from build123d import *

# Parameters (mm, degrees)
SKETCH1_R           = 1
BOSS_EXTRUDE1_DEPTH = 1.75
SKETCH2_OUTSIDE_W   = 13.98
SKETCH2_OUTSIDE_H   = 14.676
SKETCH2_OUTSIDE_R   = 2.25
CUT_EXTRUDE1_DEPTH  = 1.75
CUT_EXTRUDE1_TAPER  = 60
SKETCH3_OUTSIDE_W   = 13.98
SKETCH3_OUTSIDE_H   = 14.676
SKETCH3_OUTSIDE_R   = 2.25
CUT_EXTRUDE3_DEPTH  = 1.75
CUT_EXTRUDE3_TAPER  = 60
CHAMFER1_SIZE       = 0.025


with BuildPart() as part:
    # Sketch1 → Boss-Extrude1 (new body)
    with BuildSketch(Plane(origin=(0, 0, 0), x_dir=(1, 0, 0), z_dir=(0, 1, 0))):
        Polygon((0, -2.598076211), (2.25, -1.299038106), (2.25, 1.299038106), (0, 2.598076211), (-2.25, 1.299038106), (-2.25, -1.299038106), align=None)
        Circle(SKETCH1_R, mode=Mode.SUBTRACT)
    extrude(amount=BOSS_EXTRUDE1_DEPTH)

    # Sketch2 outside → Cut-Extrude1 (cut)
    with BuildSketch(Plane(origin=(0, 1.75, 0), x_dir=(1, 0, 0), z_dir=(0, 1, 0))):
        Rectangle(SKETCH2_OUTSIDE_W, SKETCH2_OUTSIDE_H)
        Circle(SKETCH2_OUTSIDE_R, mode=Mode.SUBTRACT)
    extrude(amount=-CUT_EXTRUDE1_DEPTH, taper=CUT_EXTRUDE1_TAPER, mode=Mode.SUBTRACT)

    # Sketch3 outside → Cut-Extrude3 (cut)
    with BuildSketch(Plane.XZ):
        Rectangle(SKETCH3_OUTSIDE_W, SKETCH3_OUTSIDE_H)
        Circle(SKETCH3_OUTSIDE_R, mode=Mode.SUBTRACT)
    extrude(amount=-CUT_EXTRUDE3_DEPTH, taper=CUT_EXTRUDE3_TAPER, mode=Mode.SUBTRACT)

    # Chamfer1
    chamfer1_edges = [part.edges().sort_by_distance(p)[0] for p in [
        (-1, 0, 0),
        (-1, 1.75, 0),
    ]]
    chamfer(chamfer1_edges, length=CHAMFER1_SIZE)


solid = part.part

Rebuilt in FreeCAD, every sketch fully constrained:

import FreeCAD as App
import Part
import Sketcher
Q = App.Units.Quantity


def edges_at(feature, points):
    """Names of the edges that pass closest to the given points."""
    edges = feature.Shape.Edges
    near = lambda p: min(range(len(edges)), key=lambda i: edges[i].distToShape(Part.Vertex(*p))[0])
    return sorted({f"Edge{near(p) + 1}" for p in points})

doc = App.newDocument("Part")
body = doc.addObject("PartDesign::Body", "Body")

# Sketch on XZ plane
sketch1 = body.newObject("Sketcher::SketchObject", "Sketch")
sketch1.AttachmentSupport = (doc.getObject("XZ_Plane"), [""])
sketch1.MapMode = "FlatFace"
sketch1.addGeometry(Part.LineSegment(App.Vector(0, 2.598076, 0), App.Vector(2.25, 1.299038, 0)), False)
sketch1.addGeometry(Part.LineSegment(App.Vector(2.25, 1.299038, 0), App.Vector(2.25, -1.299038, 0)), False)
sketch1.addGeometry(Part.LineSegment(App.Vector(2.25, -1.299038, 0), App.Vector(0, -2.598076, 0)), False)
sketch1.addGeometry(Part.LineSegment(App.Vector(0, -2.598076, 0), App.Vector(-2.25, -1.299038, 0)), False)
sketch1.addGeometry(Part.LineSegment(App.Vector(-2.25, -1.299038, 0), App.Vector(-2.25, 1.299038, 0)), False)
sketch1.addGeometry(Part.LineSegment(App.Vector(-2.25, 1.299038, 0), App.Vector(0, 2.598076, 0)), False)
sketch1.addGeometry(Part.Circle(App.Vector(0, 0, 0), App.Vector(0, 0, 1), 1), False)
sketch1.addConstraint(Sketcher.Constraint("Coincident", 0, 2, 1, 1))
sketch1.addConstraint(Sketcher.Constraint("Coincident", 1, 2, 2, 1))
sketch1.addConstraint(Sketcher.Constraint("Coincident", 2, 2, 3, 1))
sketch1.addConstraint(Sketcher.Constraint("Coincident", 3, 2, 4, 1))
sketch1.addConstraint(Sketcher.Constraint("Coincident", 4, 2, 5, 1))
sketch1.addConstraint(Sketcher.Constraint("Coincident", 5, 2, 0, 1))
sketch1.addConstraint(Sketcher.Constraint("Vertical", 1))
sketch1.addConstraint(Sketcher.Constraint("Vertical", 4))
sketch1.addConstraint(Sketcher.Constraint("Coincident", 6, 3, -1, 1))
sketch1.addConstraint(Sketcher.Constraint("Symmetric", 0, 2, 3, 2, -1, 1))
sketch1.addConstraint(Sketcher.Constraint("Symmetric", 2, 2, 5, 2, -1, 1))
sketch1.addConstraint(Sketcher.Constraint("PointOnObject", 2, 2, -2))
sketch1.addConstraint(Sketcher.Constraint("Parallel", 2, 5))
sketch1.addConstraint(Sketcher.Constraint("Horizontal", 1, 2, 3, 2))
sketch1.addConstraint(Sketcher.Constraint("Diameter", 6, Q("2 mm")))
sketch1.addConstraint(Sketcher.Constraint("Angle", 0, Q("-30 deg")))
sketch1.addConstraint(Sketcher.Constraint("DistanceX", 3, 2, 1, 2, Q("4.5 mm")))
sketch1.addConstraint(Sketcher.Constraint("DistanceY", 1, 2, 1, 1, Q("2.598076 mm")))
pad1 = body.newObject("PartDesign::Pad", "Pad")
pad1.Profile = sketch1
pad1.Length = 1.75
pad1.Reversed = True

# Sketch on XZ plane
sketch2 = body.newObject("Sketcher::SketchObject", "Sketch001")
sketch2.AttachmentSupport = (doc.getObject("XZ_Plane"), [""])
sketch2.MapMode = "FlatFace"
sketch2.AttachmentOffset = App.Placement(App.Vector(0, 0, -1.75), App.Rotation())
sketch2.addGeometry(Part.LineSegment(App.Vector(-6.99, -7.338, 0), App.Vector(-6.99, 7.338, 0)), False)
sketch2.addGeometry(Part.LineSegment(App.Vector(-6.99, 7.338, 0), App.Vector(6.99, 7.338, 0)), False)
sketch2.addGeometry(Part.LineSegment(App.Vector(6.99, 7.338, 0), App.Vector(6.99, -7.338, 0)), False)
sketch2.addGeometry(Part.LineSegment(App.Vector(6.99, -7.338, 0), App.Vector(-6.99, -7.338, 0)), False)
sketch2.addGeometry(Part.Circle(App.Vector(0, 0, 0), App.Vector(0, 0, 1), 2.25), False)
sketch2.addConstraint(Sketcher.Constraint("Coincident", 0, 2, 1, 1))
sketch2.addConstraint(Sketcher.Constraint("Coincident", 1, 2, 2, 1))
sketch2.addConstraint(Sketcher.Constraint("Coincident", 2, 2, 3, 1))
sketch2.addConstraint(Sketcher.Constraint("Coincident", 3, 2, 0, 1))
sketch2.addConstraint(Sketcher.Constraint("Vertical", 0))
sketch2.addConstraint(Sketcher.Constraint("Horizontal", 1))
sketch2.addConstraint(Sketcher.Constraint("Vertical", 2))
sketch2.addConstraint(Sketcher.Constraint("Horizontal", 3))
sketch2.addConstraint(Sketcher.Constraint("Coincident", 4, 3, -1, 1))
sketch2.addConstraint(Sketcher.Constraint("Symmetric", 0, 2, 2, 2, -1, 1))
sketch2.addConstraint(Sketcher.Constraint("Diameter", 4, Q("4.5 mm")))
sketch2.addConstraint(Sketcher.Constraint("DistanceX", 1, 1, 1, 2, Q("13.98 mm")))
sketch2.addConstraint(Sketcher.Constraint("DistanceY", 0, 1, 0, 2, Q("14.676 mm")))
pocket1 = body.newObject("PartDesign::Pocket", "Pocket")
pocket1.Profile = sketch2
pocket1.Length = 1.75
pocket1.Reversed = True
pocket1.TaperAngle = 60

# Sketch on XZ plane
sketch3 = body.newObject("Sketcher::SketchObject", "Sketch002")
sketch3.AttachmentSupport = (doc.getObject("XZ_Plane"), [""])
sketch3.MapMode = "FlatFace"
sketch3.addGeometry(Part.LineSegment(App.Vector(-6.99, 7.338, 0), App.Vector(-6.99, -7.338, 0)), False)
sketch3.addGeometry(Part.LineSegment(App.Vector(-6.99, -7.338, 0), App.Vector(6.99, -7.338, 0)), False)
sketch3.addGeometry(Part.LineSegment(App.Vector(6.99, -7.338, 0), App.Vector(6.99, 7.338, 0)), False)
sketch3.addGeometry(Part.LineSegment(App.Vector(6.99, 7.338, 0), App.Vector(-6.99, 7.338, 0)), False)
sketch3.addGeometry(Part.Circle(App.Vector(0, 0, 0), App.Vector(0, 0, 1), 2.25), False)
sketch3.addConstraint(Sketcher.Constraint("Coincident", 0, 2, 1, 1))
sketch3.addConstraint(Sketcher.Constraint("Coincident", 1, 2, 2, 1))
sketch3.addConstraint(Sketcher.Constraint("Coincident", 2, 2, 3, 1))
sketch3.addConstraint(Sketcher.Constraint("Coincident", 3, 2, 0, 1))
sketch3.addConstraint(Sketcher.Constraint("Vertical", 0))
sketch3.addConstraint(Sketcher.Constraint("Horizontal", 1))
sketch3.addConstraint(Sketcher.Constraint("Vertical", 2))
sketch3.addConstraint(Sketcher.Constraint("Horizontal", 3))
sketch3.addConstraint(Sketcher.Constraint("Coincident", 4, 3, -1, 1))
sketch3.addConstraint(Sketcher.Constraint("Symmetric", 0, 2, 2, 2, -1, 1))
sketch3.addConstraint(Sketcher.Constraint("Diameter", 4, Q("4.5 mm")))
sketch3.addConstraint(Sketcher.Constraint("DistanceX", 1, 1, 1, 2, Q("13.98 mm")))
sketch3.addConstraint(Sketcher.Constraint("DistanceY", 0, 2, 0, 1, Q("14.676 mm")))
pocket2 = body.newObject("PartDesign::Pocket", "Pocket001")
pocket2.Profile = sketch3
pocket2.Length = 1.75
pocket2.TaperAngle = 60
doc.recompute()

chamfer = body.newObject("PartDesign::Chamfer", "Chamfer")
chamfer.Base = (pocket2, edges_at(pocket2, [(-1, 0, 0), (-1, 1.75, 0)]))
chamfer.Size = 0.025

doc.recompute()
